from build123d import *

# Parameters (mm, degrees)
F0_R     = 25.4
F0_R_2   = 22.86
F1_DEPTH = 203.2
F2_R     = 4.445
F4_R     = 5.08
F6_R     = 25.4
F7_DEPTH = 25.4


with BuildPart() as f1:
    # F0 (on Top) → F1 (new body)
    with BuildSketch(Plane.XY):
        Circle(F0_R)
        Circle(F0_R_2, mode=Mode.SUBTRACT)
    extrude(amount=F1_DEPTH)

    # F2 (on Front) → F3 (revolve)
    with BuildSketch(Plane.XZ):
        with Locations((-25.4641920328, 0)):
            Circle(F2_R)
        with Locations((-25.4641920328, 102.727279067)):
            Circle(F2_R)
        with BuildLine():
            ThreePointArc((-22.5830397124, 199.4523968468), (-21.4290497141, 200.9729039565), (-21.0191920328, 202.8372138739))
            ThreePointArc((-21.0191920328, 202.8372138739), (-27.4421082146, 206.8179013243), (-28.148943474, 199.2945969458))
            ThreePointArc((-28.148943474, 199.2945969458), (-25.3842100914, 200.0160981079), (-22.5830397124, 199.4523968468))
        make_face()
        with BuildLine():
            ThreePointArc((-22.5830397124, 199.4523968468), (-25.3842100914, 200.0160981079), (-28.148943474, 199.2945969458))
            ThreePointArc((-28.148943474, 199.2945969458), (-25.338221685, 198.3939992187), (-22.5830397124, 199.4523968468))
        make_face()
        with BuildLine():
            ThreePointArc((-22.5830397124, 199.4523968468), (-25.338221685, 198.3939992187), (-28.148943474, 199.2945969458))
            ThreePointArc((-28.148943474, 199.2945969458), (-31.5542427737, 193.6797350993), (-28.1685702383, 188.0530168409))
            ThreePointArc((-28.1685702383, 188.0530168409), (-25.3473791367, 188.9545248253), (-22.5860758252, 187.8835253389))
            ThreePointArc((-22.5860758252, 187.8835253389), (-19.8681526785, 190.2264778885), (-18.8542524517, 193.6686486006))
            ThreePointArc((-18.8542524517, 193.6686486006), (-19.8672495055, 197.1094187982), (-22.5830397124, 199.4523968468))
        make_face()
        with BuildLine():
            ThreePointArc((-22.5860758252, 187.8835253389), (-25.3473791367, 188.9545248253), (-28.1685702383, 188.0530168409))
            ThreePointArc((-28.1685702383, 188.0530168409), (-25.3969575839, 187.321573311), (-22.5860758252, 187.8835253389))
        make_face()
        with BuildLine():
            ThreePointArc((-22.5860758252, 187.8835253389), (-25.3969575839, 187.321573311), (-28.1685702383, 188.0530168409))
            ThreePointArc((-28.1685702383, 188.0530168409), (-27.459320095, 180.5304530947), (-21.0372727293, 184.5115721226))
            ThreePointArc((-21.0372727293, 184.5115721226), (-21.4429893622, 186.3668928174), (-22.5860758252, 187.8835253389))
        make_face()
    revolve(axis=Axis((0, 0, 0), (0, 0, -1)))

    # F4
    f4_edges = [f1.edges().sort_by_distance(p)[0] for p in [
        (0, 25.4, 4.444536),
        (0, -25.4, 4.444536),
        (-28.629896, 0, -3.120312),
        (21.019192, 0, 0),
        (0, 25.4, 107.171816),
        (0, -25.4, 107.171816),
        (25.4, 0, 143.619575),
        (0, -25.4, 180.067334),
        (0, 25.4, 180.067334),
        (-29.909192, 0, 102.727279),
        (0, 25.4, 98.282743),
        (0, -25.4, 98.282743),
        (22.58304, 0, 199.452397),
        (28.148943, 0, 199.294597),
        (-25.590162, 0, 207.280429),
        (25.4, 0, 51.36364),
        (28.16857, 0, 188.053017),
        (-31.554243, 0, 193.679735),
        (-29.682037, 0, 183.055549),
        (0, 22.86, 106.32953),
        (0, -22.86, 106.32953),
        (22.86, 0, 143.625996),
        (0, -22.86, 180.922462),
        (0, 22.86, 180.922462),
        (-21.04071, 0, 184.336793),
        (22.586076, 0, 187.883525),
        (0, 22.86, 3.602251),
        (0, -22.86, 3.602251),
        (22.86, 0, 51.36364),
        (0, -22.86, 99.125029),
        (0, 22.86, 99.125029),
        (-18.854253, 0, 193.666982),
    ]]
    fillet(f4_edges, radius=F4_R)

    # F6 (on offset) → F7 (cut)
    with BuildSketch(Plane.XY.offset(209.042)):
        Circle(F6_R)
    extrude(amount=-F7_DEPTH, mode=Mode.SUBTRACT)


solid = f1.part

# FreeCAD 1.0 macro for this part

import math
import FreeCAD as App
import Part
import Sketcher
Q = App.Units.Quantity

doc = App.newDocument("Part")
body = doc.addObject("PartDesign::Body", "Body")

sketch1 = body.newObject("Sketcher::SketchObject", "Sketch")
sketch1.AttachmentSupport = (doc.getObject("XY_Plane"), [""])
sketch1.MapMode = "FlatFace"
sketch1.addGeometry([
    Part.Circle(App.Vector(0, 0, 0), App.Vector(0, 0, 1), 25.4),
    Part.Circle(App.Vector(0, 0, 0), App.Vector(0, 0, 1), 22.86),
], False)
sketch1.addConstraint([
    Sketcher.Constraint("Coincident", 0, 3, -1, 1),
    Sketcher.Constraint("Coincident", 1, 3, -1, 1),
    Sketcher.Constraint("Diameter", 0, Q("2 in")),
    Sketcher.Constraint("Diameter", 1, Q("1.8 in")),
])
pad1 = body.newObject("PartDesign::Pad", "Pad")
pad1.Profile = sketch1
pad1.Length = Q("8 in")

sketch2 = body.newObject("Sketcher::SketchObject", "Sketch001")
sketch2.AttachmentSupport = (doc.getObject("XZ_Plane"), [""])
sketch2.MapMode = "FlatFace"
sketch2.addGeometry([
    Part.Circle(App.Vector(-25.464192, 0, 0), App.Vector(0, 0, 1), 4.445),
    Part.Circle(App.Vector(-25.464192, 102.727279, 0), App.Vector(0, 0, 1), 4.445),
    Part.ArcOfCircle(Part.Circle(App.Vector(-25.464192, 202.837214, 0), App.Vector(0, 0, 1), 4.445), math.radians(-49.59561), math.radians(0)),
    Part.ArcOfCircle(Part.Circle(App.Vector(-25.464192, 202.837214, 0), App.Vector(0, 0, 1), 4.445), math.radians(0), math.radians(232.843545)),
    Part.ArcOfCircle(Part.Circle(App.Vector(-25.204252, 193.668649, 0), App.Vector(0, 0, 1), 6.35), math.radians(117.628117), math.radians(242.171817)),
    Part.ArcOfCircle(Part.Circle(App.Vector(-25.482273, 184.511572, 0), App.Vector(0, 0, 1), 4.445), math.radians(127.181464), math.radians(360)),
    Part.ArcOfCircle(Part.Circle(App.Vector(-25.482273, 184.511572, 0), App.Vector(0, 0, 1), 4.445), math.radians(0), math.radians(49.340461)),
    Part.ArcOfCircle(Part.Circle(App.Vector(-25.204252, 193.668649, 0), App.Vector(0, 0, 1), 6.35), math.radians(-65.649891), math.radians(0)),
    Part.ArcOfCircle(Part.Circle(App.Vector(-25.204252, 193.668649, 0), App.Vector(0, 0, 1), 6.35), math.radians(0), math.radians(65.619818)),
], False)
sketch2.addConstraint([
    Sketcher.Constraint("Tangent", 2, 2, 3, 1),
    Sketcher.Constraint("Coincident", 3, 2, 4, 1),
    Sketcher.Constraint("Coincident", 4, 2, 5, 1),
    Sketcher.Constraint("Tangent", 5, 2, 6, 1),
    Sketcher.Constraint("Coincident", 6, 2, 7, 1),
    Sketcher.Constraint("Tangent", 7, 2, 8, 1),
    Sketcher.Constraint("Coincident", 8, 2, 2, 1),
    Sketcher.Constraint("Coincident", 7, 3, 4, 3),
    Sketcher.Constraint("Equal", 0, 1),
    Sketcher.Constraint("Equal", 1, 2),
    Sketcher.Constraint("Equal", 2, 3),
    Sketcher.Constraint("Equal", 3, 5),
    Sketcher.Constraint("Equal", 5, 6),
    Sketcher.Constraint("Equal", 4, 7),
    Sketcher.Constraint("Equal", 7, 8),
    Sketcher.Constraint("PointOnObject", 0, 3, -1),
    Sketcher.Constraint("Horizontal", 3, 3, 2, 2),
    Sketcher.Constraint("Horizontal", 6, 3, 5, 2),
    Sketcher.Constraint("Horizontal", 8, 3, 7, 2),
    Sketcher.Constraint("Vertical", 0, 3, 1, 3),
    Sketcher.Constraint("Vertical", 1, 3, 2, 3),
    Sketcher.Constraint("Diameter", 0, Q("0.35 in")),
    Sketcher.Constraint("Radius", 4, Q("0.25 in")),
    Sketcher.Constraint("DistanceY", 3, 2, 8, 2, Q("0.1578 mm")),
    Sketcher.Constraint("DistanceY", -1, 1, 1, 3, Q("102.727279 mm")),
    Sketcher.Constraint("DistanceY", -1, 1, 4, 3, Q("193.668649 mm")),
    Sketcher.Constraint("DistanceX", 4, 2, -1, 1, Q("28.16857 mm")),
    Sketcher.Constraint("DistanceX", 8, 2, -1, 1, Q("22.58304 mm")),
    Sketcher.Constraint("DistanceX", 2, 3, 4, 3, Q("0.25994 mm")),
    Sketcher.Constraint("DistanceX", 5, 3, 4, 3, Q("0.27802 mm")),
])
revolution = body.newObject("PartDesign::Revolution", "Revolution")
revolution.Profile = sketch2
revolution.ReferenceAxis = (sketch2, ["V_Axis"])
revolution.Angle = 360
doc.recompute()

fillet = body.newObject("PartDesign::Fillet", "Fillet")
fillet.Base = (revolution, ["Edge1"])
fillet.UseAllEdges = True
fillet.Radius = Q("0.2 in")

sketch3 = body.newObject("Sketcher::SketchObject", "Sketch002")
sketch3.AttachmentSupport = (doc.getObject("XY_Plane"), [""])
sketch3.MapMode = "FlatFace"
sketch3.AttachmentOffset = App.Placement(App.Vector(0, 0, 8.23 * 25.4), App.Rotation())
sketch3.addGeometry(Part.Circle(App.Vector(0, 0, 0), App.Vector(0, 0, 1), 25.4), False)
sketch3.addConstraint([
    Sketcher.Constraint("Coincident", 0, 3, -1, 1),
    Sketcher.Constraint("Diameter", 0, Q("2 in")),
])
pocket1 = body.newObject("PartDesign::Pocket", "Pocket")
pocket1.Profile = sketch3
pocket1.Length = Q("1 in")

doc.recompute()
